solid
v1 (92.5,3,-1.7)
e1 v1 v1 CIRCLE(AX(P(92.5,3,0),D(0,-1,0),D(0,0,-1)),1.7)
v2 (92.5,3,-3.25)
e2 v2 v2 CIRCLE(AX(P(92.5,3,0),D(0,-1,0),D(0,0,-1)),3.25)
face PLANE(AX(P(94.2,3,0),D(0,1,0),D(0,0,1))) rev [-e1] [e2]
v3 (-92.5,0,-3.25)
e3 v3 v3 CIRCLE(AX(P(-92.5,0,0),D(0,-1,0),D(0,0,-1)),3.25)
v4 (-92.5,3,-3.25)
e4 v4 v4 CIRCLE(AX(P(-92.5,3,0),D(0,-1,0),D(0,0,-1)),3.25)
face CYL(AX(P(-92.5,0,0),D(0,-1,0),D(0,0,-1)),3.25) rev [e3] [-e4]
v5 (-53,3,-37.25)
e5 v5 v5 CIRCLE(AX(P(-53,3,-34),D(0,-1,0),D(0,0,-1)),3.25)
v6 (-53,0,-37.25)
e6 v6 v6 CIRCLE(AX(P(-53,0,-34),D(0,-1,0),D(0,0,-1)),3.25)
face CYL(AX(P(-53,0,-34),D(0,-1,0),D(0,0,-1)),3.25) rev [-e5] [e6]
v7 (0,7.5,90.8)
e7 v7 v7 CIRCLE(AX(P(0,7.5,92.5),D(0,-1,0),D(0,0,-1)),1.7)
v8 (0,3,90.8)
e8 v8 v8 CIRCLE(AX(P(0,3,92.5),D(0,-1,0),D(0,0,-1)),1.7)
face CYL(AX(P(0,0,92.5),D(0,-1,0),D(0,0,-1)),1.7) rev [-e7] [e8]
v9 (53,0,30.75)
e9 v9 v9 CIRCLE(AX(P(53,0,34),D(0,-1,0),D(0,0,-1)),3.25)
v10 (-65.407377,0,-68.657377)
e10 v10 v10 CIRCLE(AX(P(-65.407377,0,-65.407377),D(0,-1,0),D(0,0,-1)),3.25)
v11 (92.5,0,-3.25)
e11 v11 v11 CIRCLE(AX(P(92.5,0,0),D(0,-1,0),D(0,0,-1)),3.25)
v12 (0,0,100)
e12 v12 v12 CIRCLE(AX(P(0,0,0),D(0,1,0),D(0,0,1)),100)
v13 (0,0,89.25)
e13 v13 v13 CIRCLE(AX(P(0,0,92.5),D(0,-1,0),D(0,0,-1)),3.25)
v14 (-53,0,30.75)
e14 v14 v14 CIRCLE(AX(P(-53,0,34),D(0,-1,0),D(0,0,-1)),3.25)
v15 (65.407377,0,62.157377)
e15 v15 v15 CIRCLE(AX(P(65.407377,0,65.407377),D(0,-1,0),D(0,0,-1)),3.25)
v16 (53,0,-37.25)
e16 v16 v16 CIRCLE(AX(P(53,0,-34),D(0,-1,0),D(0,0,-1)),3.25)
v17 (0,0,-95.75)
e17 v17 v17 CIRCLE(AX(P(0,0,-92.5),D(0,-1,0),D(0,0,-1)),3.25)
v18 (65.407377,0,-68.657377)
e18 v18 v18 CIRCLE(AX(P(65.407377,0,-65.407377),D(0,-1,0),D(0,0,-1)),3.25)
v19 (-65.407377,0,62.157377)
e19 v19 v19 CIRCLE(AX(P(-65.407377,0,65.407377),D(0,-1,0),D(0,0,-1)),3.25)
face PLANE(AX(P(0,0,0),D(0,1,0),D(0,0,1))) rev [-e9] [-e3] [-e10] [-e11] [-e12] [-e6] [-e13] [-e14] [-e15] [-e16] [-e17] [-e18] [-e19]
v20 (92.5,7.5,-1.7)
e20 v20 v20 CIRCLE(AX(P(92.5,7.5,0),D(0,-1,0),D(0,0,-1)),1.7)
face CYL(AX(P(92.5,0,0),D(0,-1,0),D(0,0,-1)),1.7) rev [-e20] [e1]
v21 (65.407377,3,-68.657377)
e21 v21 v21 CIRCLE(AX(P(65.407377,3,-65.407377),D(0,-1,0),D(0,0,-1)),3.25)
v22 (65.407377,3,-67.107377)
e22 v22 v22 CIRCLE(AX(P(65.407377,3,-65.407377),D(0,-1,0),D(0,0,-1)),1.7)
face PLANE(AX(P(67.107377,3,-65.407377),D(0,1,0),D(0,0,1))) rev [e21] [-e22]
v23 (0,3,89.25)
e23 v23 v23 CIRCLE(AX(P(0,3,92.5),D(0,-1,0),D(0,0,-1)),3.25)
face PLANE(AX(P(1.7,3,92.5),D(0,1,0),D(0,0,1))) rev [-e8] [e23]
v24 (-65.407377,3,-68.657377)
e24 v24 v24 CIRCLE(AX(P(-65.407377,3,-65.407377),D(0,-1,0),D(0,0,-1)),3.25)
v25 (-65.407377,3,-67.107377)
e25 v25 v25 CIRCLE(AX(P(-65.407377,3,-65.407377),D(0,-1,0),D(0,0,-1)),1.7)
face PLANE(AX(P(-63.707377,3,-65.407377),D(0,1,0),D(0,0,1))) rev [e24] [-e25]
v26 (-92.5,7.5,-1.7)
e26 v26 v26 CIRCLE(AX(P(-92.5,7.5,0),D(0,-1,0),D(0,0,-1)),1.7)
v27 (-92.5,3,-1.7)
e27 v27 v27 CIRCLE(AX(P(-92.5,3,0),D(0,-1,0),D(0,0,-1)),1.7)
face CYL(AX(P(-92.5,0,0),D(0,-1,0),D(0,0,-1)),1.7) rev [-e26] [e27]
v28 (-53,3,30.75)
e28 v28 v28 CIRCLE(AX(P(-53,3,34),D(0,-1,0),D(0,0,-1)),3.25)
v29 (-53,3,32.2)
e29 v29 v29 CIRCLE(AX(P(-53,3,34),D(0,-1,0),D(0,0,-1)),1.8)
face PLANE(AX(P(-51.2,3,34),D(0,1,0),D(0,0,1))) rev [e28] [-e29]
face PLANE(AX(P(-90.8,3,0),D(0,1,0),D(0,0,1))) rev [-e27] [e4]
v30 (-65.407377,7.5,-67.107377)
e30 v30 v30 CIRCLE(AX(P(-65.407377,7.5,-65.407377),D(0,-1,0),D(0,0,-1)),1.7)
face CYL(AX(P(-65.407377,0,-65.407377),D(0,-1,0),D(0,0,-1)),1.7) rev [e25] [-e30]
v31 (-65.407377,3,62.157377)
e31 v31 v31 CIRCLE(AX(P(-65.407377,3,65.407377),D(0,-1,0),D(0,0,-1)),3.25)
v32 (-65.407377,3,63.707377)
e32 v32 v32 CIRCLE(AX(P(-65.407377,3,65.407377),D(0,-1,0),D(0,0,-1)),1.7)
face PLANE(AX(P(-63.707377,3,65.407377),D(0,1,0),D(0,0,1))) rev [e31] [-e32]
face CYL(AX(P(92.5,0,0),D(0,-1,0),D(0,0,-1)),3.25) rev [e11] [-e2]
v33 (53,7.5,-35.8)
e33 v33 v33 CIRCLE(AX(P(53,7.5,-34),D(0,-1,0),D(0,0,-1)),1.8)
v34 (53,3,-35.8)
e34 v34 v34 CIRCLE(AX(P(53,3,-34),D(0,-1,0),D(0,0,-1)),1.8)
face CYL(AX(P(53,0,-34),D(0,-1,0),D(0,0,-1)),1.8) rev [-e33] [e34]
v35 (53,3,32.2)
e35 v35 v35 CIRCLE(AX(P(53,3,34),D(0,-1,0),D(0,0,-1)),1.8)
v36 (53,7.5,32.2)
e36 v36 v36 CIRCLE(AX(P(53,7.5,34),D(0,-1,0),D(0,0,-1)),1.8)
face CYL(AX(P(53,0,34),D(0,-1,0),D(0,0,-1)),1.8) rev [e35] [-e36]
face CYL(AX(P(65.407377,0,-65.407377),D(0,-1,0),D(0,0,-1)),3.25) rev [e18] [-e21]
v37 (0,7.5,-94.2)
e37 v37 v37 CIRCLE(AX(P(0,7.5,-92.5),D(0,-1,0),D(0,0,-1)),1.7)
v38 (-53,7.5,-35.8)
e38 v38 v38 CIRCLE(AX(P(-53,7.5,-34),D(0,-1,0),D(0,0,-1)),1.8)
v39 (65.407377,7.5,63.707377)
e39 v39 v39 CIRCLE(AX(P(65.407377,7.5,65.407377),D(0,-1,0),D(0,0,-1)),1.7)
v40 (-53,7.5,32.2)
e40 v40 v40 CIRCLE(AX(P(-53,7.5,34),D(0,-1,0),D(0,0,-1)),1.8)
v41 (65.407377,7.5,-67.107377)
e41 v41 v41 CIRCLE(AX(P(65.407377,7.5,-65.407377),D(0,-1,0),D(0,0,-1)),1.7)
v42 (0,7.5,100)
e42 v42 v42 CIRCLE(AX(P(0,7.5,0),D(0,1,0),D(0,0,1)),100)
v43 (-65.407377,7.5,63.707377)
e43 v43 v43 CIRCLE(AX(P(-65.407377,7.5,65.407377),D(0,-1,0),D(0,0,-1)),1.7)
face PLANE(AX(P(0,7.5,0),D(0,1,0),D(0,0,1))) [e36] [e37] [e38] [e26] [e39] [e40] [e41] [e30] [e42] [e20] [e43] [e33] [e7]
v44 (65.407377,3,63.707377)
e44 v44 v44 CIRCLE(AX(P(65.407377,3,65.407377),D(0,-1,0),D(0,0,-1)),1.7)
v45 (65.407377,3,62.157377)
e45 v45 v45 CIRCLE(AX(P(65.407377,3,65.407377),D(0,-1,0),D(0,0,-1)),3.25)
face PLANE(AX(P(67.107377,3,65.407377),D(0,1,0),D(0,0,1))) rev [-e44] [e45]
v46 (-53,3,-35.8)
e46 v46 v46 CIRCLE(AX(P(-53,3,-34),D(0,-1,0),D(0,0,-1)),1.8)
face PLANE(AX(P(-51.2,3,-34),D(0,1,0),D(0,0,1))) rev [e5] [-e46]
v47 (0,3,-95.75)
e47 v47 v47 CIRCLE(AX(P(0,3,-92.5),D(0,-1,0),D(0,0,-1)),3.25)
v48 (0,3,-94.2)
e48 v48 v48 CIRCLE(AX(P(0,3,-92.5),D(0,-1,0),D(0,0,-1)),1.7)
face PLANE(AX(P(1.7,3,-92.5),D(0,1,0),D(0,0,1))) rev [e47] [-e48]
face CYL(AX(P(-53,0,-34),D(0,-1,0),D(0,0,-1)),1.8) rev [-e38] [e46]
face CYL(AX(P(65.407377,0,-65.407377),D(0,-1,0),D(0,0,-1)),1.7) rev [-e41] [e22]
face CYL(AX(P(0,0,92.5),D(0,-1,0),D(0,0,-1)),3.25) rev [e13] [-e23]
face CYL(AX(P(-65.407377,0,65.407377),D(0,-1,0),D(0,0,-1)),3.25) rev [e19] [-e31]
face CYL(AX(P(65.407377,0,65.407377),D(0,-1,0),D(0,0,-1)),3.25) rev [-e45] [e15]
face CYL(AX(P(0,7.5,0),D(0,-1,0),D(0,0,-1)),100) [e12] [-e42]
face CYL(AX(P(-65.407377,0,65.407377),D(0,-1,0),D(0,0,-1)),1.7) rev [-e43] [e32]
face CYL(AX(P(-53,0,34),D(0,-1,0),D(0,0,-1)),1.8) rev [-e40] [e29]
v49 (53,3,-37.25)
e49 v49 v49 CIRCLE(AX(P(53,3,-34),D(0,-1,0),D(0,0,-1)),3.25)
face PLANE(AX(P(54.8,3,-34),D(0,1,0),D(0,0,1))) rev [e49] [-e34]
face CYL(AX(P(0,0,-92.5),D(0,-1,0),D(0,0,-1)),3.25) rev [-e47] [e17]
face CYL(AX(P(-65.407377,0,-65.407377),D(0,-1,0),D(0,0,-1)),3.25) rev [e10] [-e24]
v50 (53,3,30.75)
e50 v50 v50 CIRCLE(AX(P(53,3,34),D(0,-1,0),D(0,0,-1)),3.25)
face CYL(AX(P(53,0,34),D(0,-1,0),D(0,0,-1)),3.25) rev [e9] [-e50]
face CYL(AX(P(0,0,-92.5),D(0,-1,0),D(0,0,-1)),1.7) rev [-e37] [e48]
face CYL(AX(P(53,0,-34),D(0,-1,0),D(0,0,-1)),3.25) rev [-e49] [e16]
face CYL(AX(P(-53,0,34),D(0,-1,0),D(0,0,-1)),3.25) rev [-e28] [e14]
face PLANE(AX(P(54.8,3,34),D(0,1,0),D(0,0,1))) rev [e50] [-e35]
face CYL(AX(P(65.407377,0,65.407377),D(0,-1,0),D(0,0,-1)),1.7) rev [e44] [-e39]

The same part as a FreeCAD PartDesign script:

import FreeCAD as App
import Part
import Sketcher

V = App.Vector

doc = App.newDocument("Part")
body = doc.addObject("PartDesign::Body", "Body")

# Sketch on XZ plane
sketch1 = body.newObject("Sketcher::SketchObject", "Sketch")
sketch1.AttachmentSupport = (doc.getObject("XZ_Plane"), [""])
sketch1.MapMode = "FlatFace"
sketch1.addGeometry(Part.Circle(V(0, 0, 0), V(0, 0, 1), 100), False)
sketch1.addConstraint([
    Sketcher.Constraint("Coincident", 0, 3, -1, 1),
    Sketcher.Constraint("Diameter", 0, 200.0),
])
pad1 = body.newObject("PartDesign::Pad", "Pad")
pad1.Profile = sketch1
pad1.Length = 7.5
pad1.Reversed = True

# Sketch on XZ plane
sketch2 = body.newObject("Sketcher::SketchObject", "Sketch001")
sketch2.AttachmentSupport = (doc.getObject("XZ_Plane"), [""])
sketch2.MapMode = "FlatFace"
sketch2.addGeometry([
    Part.Circle(V(0, 92.5, 0), V(0, 0, 1), 1.7),  # 0
    Part.Circle(V(65.4, 65.4, 0), V(0, 0, 1), 1.7),  # 1
    Part.Circle(V(92.5, 0, 0), V(0, 0, 1), 1.7),  # 2
    Part.Circle(V(65.4, -65.4, 0), V(0, 0, 1), 1.7),  # 3
    Part.Circle(V(0, -92.5, 0), V(0, 0, 1), 1.7),  # 4
    Part.Circle(V(-65.4, -65.4, 0), V(0, 0, 1), 1.7),  # 5
    Part.Circle(V(-92.5, 0, 0), V(0, 0, 1), 1.7),  # 6
    Part.Circle(V(-65.4, 65.4, 0), V(0, 0, 1), 1.7),  # 7
], False)
sketch2.addConstraint([
    Sketcher.Constraint("Equal", 0, 1),
    Sketcher.Constraint("Equal", 1, 2),
    Sketcher.Constraint("Equal", 2, 3),
    Sketcher.Constraint("Equal", 3, 4),
    Sketcher.Constraint("Equal", 4, 5),
    Sketcher.Constraint("Equal", 5, 6),
    Sketcher.Constraint("Equal", 6, 7),
    Sketcher.Constraint("Symmetric", 0, 3, 4, 3, -1, 1),
    Sketcher.Constraint("Symmetric", 1, 3, 5, 3, -1, 1),
    Sketcher.Constraint("Symmetric", 2, 3, 6, 3, -1, 1),
    Sketcher.Constraint("Symmetric", 3, 3, 7, 3, -1, 1),
    Sketcher.Constraint("Symmetric", 3, 3, 5, 3, -2),
    Sketcher.Constraint("PointOnObject", 0, 3, -2),
    Sketcher.Constraint("PointOnObject", 2, 3, -1),
    Sketcher.Constraint("Diameter", 0, 3.4),
    Sketcher.Constraint("DistanceY", 4, 3, 0, 3, 185.0),
    Sketcher.Constraint("DistanceX", -1, 1, 2, 3, 92.5),
    Sketcher.Constraint("DistanceX", -1, 1, 1, 3, 65.407377),
    Sketcher.Constraint("DistanceY", -1, 1, 1, 3, 65.407377),
])
doc.recompute()
hole = body.newObject("PartDesign::Hole", "Hole")
hole.Profile = sketch2
hole.ThreadType = "None"
hole.Diameter = 3.4
hole.DepthType = "Dimension"
hole.Depth = 7.5
hole.DrillPoint = "Angled"
hole.DrillPointAngle = 118
hole.HoleCutType = "Counterbore"
hole.HoleCutDiameter = 6.5
hole.HoleCutDepth = 3

# Sketch on XZ plane
sketch3 = body.newObject("Sketcher::SketchObject", "Sketch002")
sketch3.AttachmentSupport = (doc.getObject("XZ_Plane"), [""])
sketch3.MapMode = "FlatFace"
sketch3.addGeometry([
    Part.Circle(V(53, -34, 0), V(0, 0, 1), 1.8),
    Part.Circle(V(-53, -34, 0), V(0, 0, 1), 1.8),
    Part.Circle(V(-53, 34, 0), V(0, 0, 1), 1.8),
    Part.Circle(V(53, 34, 0), V(0, 0, 1), 1.8),
], False)
sketch3.addConstraint([
    Sketcher.Constraint("Equal", 0, 1),
    Sketcher.Constraint("Equal", 1, 2),
    Sketcher.Constraint("Equal", 2, 3),
    Sketcher.Constraint("Symmetric", 0, 3, 2, 3, -1, 1),
    Sketcher.Constraint("Symmetric", 1, 3, 3, 3, -1, 1),
    Sketcher.Constraint("Symmetric", 0, 3, 1, 3, -2),
    Sketcher.Constraint("Diameter", 0, 3.6),
    Sketcher.Constraint("DistanceX", -1, 1, 0, 3, 53.0),
    Sketcher.Constraint("DistanceY", 0, 3, -1, 1, 34.0),
])
doc.recompute()
hole2 = body.newObject("PartDesign::Hole", "Hole001")
hole2.Profile = sketch3
hole2.ThreadType = "None"
hole2.Diameter = 3.6
hole2.DepthType = "Dimension"
hole2.Depth = 7.5
hole2.DrillPoint = "Angled"
hole2.DrillPointAngle = 118
hole2.HoleCutType = "Counterbore"
hole2.HoleCutDiameter = 6.5
hole2.HoleCutDepth = 3

doc.recompute()
